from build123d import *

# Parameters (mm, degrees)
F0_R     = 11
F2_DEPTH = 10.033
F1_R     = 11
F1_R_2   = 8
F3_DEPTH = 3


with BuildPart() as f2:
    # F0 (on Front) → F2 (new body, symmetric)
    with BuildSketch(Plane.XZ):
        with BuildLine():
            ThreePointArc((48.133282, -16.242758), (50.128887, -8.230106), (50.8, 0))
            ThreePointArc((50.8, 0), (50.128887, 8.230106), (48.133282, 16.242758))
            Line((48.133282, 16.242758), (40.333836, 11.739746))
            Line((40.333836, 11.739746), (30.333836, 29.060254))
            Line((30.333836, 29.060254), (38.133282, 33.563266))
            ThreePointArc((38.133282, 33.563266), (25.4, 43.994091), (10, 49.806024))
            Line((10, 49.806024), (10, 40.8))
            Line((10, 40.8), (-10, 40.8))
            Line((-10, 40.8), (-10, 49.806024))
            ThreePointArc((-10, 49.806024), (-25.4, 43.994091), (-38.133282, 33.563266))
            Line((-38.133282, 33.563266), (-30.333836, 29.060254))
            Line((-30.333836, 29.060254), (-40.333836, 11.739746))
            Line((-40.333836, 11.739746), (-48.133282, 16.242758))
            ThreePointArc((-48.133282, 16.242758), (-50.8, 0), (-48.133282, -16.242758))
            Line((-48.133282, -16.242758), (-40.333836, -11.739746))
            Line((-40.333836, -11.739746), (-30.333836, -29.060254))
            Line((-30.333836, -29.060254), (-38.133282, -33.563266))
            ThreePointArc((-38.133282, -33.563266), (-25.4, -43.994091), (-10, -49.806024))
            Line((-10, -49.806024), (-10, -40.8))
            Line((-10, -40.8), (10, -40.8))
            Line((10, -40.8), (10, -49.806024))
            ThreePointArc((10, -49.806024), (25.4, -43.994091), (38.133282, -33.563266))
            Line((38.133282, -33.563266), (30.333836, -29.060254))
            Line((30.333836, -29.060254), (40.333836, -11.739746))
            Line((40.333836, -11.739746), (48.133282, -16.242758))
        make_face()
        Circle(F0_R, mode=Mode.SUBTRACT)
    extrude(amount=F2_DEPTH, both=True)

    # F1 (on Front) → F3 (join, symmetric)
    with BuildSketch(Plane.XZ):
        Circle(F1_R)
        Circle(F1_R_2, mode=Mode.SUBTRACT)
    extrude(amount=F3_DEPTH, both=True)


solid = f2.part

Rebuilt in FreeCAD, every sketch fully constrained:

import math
import FreeCAD as App
import Part
import Sketcher
Q = App.Units.Quantity

doc = App.newDocument("Part")
body = doc.addObject("PartDesign::Body", "Body")

# Sketch on XZ plane
sketch1 = body.newObject("Sketcher::SketchObject", "Sketch")
sketch1.AttachmentSupport = (doc.getObject("XZ_Plane"), [""])
sketch1.MapMode = "FlatFace"
sketch1.addGeometry(Part.ArcOfCircle(Part.Circle(App.Vector(-0.000041, 0.000006, 0), App.Vector(0, 0, 1), 50.800041), math.radians(-18.647153), math.radians(-0.000007)), False)
sketch1.addGeometry(Part.ArcOfCircle(Part.Circle(App.Vector(-0.000041, -0.000006, 0), App.Vector(0, 0, 1), 50.800041), math.radians(0.000007), math.radians(18.647153)), False)
sketch1.addGeometry(Part.LineSegment(App.Vector(48.133282, 16.242758, 0), App.Vector(40.333836, 11.739746, 0)), False)
sketch1.addGeometry(Part.LineSegment(App.Vector(40.333836, 11.739746, 0), App.Vector(30.333836, 29.060254, 0)), False)
sketch1.addGeometry(Part.LineSegment(App.Vector(30.333836, 29.060254, 0), App.Vector(38.133282, 33.563266, 0)), False)
sketch1.addGeometry(Part.ArcOfCircle(Part.Circle(App.Vector(0.000002, 0.000003, 0), App.Vector(0, 0, 1), 50.799997), math.radians(41.352837), math.radians(78.647163)), False)
sketch1.addGeometry(Part.LineSegment(App.Vector(10, 49.806024, 0), App.Vector(10, 40.8, 0)), False)
sketch1.addGeometry(Part.LineSegment(App.Vector(10, 40.8, 0), App.Vector(-10, 40.8, 0)), False)
sketch1.addGeometry(Part.LineSegment(App.Vector(-10, 40.8, 0), App.Vector(-10, 49.806024, 0)), False)
sketch1.addGeometry(Part.ArcOfCircle(Part.Circle(App.Vector(-0.000002, 0.000003, 0), App.Vector(0, 0, 1), 50.799997), math.radians(101.352837), math.radians(138.647163)), False)
sketch1.addGeometry(Part.LineSegment(App.Vector(-38.133282, 33.563266, 0), App.Vector(-30.333836, 29.060254, 0)), False)
sketch1.addGeometry(Part.LineSegment(App.Vector(-30.333836, 29.060254, 0), App.Vector(-40.333836, 11.739746, 0)), False)
sketch1.addGeometry(Part.LineSegment(App.Vector(-40.333836, 11.739746, 0), App.Vector(-48.133282, 16.242758, 0)), False)
sketch1.addGeometry(Part.ArcOfCircle(Part.Circle(App.Vector(0.000004, 0, 0), App.Vector(0, 0, 1), 50.800004), math.radians(161.35284), math.radians(198.64716)), False)
sketch1.addGeometry(Part.LineSegment(App.Vector(-48.133282, -16.242758, 0), App.Vector(-40.333836, -11.739746, 0)), False)
sketch1.addGeometry(Part.LineSegment(App.Vector(-40.333836, -11.739746, 0), App.Vector(-30.333836, -29.060254, 0)), False)
sketch1.addGeometry(Part.LineSegment(App.Vector(-30.333836, -29.060254, 0), App.Vector(-38.133282, -33.563266, 0)), False)
sketch1.addGeometry(Part.ArcOfCircle(Part.Circle(App.Vector(-0.000002, -0.000003, 0), App.Vector(0, 0, 1), 50.799997), math.radians(-138.647163), math.radians(-101.352837)), False)
sketch1.addGeometry(Part.LineSegment(App.Vector(-10, -49.806024, 0), App.Vector(-10, -40.8, 0)), False)
sketch1.addGeometry(Part.LineSegment(App.Vector(-10, -40.8, 0), App.Vector(10, -40.8, 0)), False)
sketch1.addGeometry(Part.LineSegment(App.Vector(10, -40.8, 0), App.Vector(10, -49.806024, 0)), False)
sketch1.addGeometry(Part.ArcOfCircle(Part.Circle(App.Vector(0.000002, -0.000003, 0), App.Vector(0, 0, 1), 50.799997), math.radians(-78.647163), math.radians(-41.352837)), False)
sketch1.addGeometry(Part.LineSegment(App.Vector(38.133282, -33.563266, 0), App.Vector(30.333836, -29.060254, 0)), False)
sketch1.addGeometry(Part.LineSegment(App.Vector(30.333836, -29.060254, 0), App.Vector(40.333836, -11.739746, 0)), False)
sketch1.addGeometry(Part.LineSegment(App.Vector(40.333836, -11.739746, 0), App.Vector(48.133282, -16.242758, 0)), False)
sketch1.addGeometry(Part.Circle(App.Vector(0, 0, 0), App.Vector(0, 0, 1), 11), False)
sketch1.addConstraint(Sketcher.Constraint("Tangent", 0, 2, 1, 1))
sketch1.addConstraint(Sketcher.Constraint("Coincident", 1, 2, 2, 1))
sketch1.addConstraint(Sketcher.Constraint("Coincident", 2, 2, 3, 1))
sketch1.addConstraint(Sketcher.Constraint("Coincident", 3, 2, 4, 1))
sketch1.addConstraint(Sketcher.Constraint("Coincident", 4, 2, 5, 1))
sketch1.addConstraint(Sketcher.Constraint("Coincident", 5, 2, 6, 1))
sketch1.addConstraint(Sketcher.Constraint("Coincident", 6, 2, 7, 1))
sketch1.addConstraint(Sketcher.Constraint("Coincident", 7, 2, 8, 1))
sketch1.addConstraint(Sketcher.Constraint("Coincident", 8, 2, 9, 1))
sketch1.addConstraint(Sketcher.Constraint("Coincident", 9, 2, 10, 1))
sketch1.addConstraint(Sketcher.Constraint("Coincident", 10, 2, 11, 1))
sketch1.addConstraint(Sketcher.Constraint("Coincident", 11, 2, 12, 1))
sketch1.addConstraint(Sketcher.Constraint("Coincident", 12, 2, 13, 1))
sketch1.addConstraint(Sketcher.Constraint("Coincident", 13, 2, 14, 1))
sketch1.addConstraint(Sketcher.Constraint("Coincident", 14, 2, 15, 1))
sketch1.addConstraint(Sketcher.Constraint("Coincident", 15, 2, 16, 1))
sketch1.addConstraint(Sketcher.Constraint("Coincident", 16, 2, 17, 1))
sketch1.addConstraint(Sketcher.Constraint("Coincident", 17, 2, 18, 1))
sketch1.addConstraint(Sketcher.Constraint("Coincident", 18, 2, 19, 1))
sketch1.addConstraint(Sketcher.Constraint("Coincident", 19, 2, 20, 1))
sketch1.addConstraint(Sketcher.Constraint("Coincident", 20, 2, 21, 1))
sketch1.addConstraint(Sketcher.Constraint("Coincident", 21, 2, 22, 1))
sketch1.addConstraint(Sketcher.Constraint("Coincident", 22, 2, 23, 1))
sketch1.addConstraint(Sketcher.Constraint("Coincident", 23, 2, 24, 1))
sketch1.addConstraint(Sketcher.Constraint("Coincident", 24, 2, 0, 1))
sketch1.addConstraint(Sketcher.Constraint("Vertical", 6))
sketch1.addConstraint(Sketcher.Constraint("Horizontal", 7))
sketch1.addConstraint(Sketcher.Constraint("Vertical", 8))
sketch1.addConstraint(Sketcher.Constraint("Vertical", 18))
sketch1.addConstraint(Sketcher.Constraint("Horizontal", 19))
sketch1.addConstraint(Sketcher.Constraint("Vertical", 20))
sketch1.addConstraint(Sketcher.Constraint("Coincident", 5, 3, -1, 1))
sketch1.addConstraint(Sketcher.Constraint("Coincident", 9, 3, -1, 1))
sketch1.addConstraint(Sketcher.Constraint("Coincident", 13, 3, -1, 1))
sketch1.addConstraint(Sketcher.Constraint("Coincident", 17, 3, -1, 1))
sketch1.addConstraint(Sketcher.Constraint("Coincident", 21, 3, -1, 1))
sketch1.addConstraint(Sketcher.Constraint("Coincident", 25, 3, -1, 1))
sketch1.addConstraint(Sketcher.Constraint("Equal", 0, 1))
sketch1.addConstraint(Sketcher.Constraint("Equal", 5, 9))
sketch1.addConstraint(Sketcher.Constraint("Equal", 9, 17))
sketch1.addConstraint(Sketcher.Constraint("Equal", 17, 21))
sketch1.addConstraint(Sketcher.Constraint("Symmetric", 1, 2, 13, 2, -1, 1))
sketch1.addConstraint(Sketcher.Constraint("Symmetric", 2, 2, 14, 2, -1, 1))
sketch1.addConstraint(Sketcher.Constraint("Symmetric", 3, 2, 15, 2, -1, 1))
sketch1.addConstraint(Sketcher.Constraint("Symmetric", 6, 2, 18, 2, -1, 1))
sketch1.addConstraint(Sketcher.Constraint("Symmetric", 10, 2, 22, 2, -1, 1))
sketch1.addConstraint(Sketcher.Constraint("Symmetric", 11, 2, 23, 2, -1, 1))
sketch1.addConstraint(Sketcher.Constraint("Symmetric", 12, 2, 24, 2, -1, 1))
sketch1.addConstraint(Sketcher.Constraint("Symmetric", 3, 2, 10, 2, -2))
sketch1.addConstraint(Sketcher.Constraint("Symmetric", 2, 2, 11, 2, -2))
sketch1.addConstraint(Sketcher.Constraint("PointOnObject", 0, 2, -1))
sketch1.addConstraint(Sketcher.Constraint("Perpendicular", 2, 3))
sketch1.addConstraint(Sketcher.Constraint("Perpendicular", 3, 4))
sketch1.addConstraint(Sketcher.Constraint("Perpendicular", 10, 11))
sketch1.addConstraint(Sketcher.Constraint("Perpendicular", 11, 12))
sketch1.addConstraint(Sketcher.Constraint("Perpendicular", 15, 16))
sketch1.addConstraint(Sketcher.Constraint("Parallel", 12, 22))
sketch1.addConstraint(Sketcher.Constraint("Horizontal", 5, 2, 8, 2))
sketch1.addConstraint(Sketcher.Constraint("Horizontal", 17, 2, 20, 2))
sketch1.addConstraint(Sketcher.Constraint("Equal", 2, 4))
sketch1.addConstraint(Sketcher.Constraint("Diameter", 25, 22.0))
sketch1.addConstraint(Sketcher.Constraint("DistanceX", 7, 2, 7, 1, 20.0))
sketch1.addConstraint(Sketcher.Constraint("Angle", 2, Q("-150.000001 deg")))
sketch1.addConstraint(Sketcher.Constraint("Distance", 3, 20.0))
sketch1.addConstraint(Sketcher.Constraint("DistanceX", -1, 1, 0, 2, 50.8))
sketch1.addConstraint(Sketcher.Constraint("DistanceY", -1, 1, 6, 2, 40.8))
sketch1.addConstraint(Sketcher.Constraint("Radius", 0, 50.800041))
sketch1.addConstraint(Sketcher.Constraint("Radius", 5, 50.799997))
sketch1.addConstraint(Sketcher.Constraint("DistanceY", 2, 2, 1, 2, 4.503012))
pad1 = body.newObject("PartDesign::Pad", "Pad")
pad1.Profile = sketch1
pad1.Length = 20.066
pad1.Midplane = True

# Sketch on XZ plane
sketch2 = body.newObject("Sketcher::SketchObject", "Sketch001")
sketch2.AttachmentSupport = (doc.getObject("XZ_Plane"), [""])
sketch2.MapMode = "FlatFace"
sketch2.addGeometry(Part.Circle(App.Vector(0, 0, 0), App.Vector(0, 0, 1), 11), False)
sketch2.addGeometry(Part.Circle(App.Vector(0, 0, 0), App.Vector(0, 0, 1), 8), False)
sketch2.addConstraint(Sketcher.Constraint("Coincident", 0, 3, -1, 1))
sketch2.addConstraint(Sketcher.Constraint("Coincident", 1, 3, -1, 1))
sketch2.addConstraint(Sketcher.Constraint("Diameter", 0, 22.0))
sketch2.addConstraint(Sketcher.Constraint("Diameter", 1, 16.0))
pad2 = body.newObject("PartDesign::Pad", "Pad001")
pad2.Profile = sketch2
pad2.Length = 6
pad2.Midplane = True

doc.recompute()
